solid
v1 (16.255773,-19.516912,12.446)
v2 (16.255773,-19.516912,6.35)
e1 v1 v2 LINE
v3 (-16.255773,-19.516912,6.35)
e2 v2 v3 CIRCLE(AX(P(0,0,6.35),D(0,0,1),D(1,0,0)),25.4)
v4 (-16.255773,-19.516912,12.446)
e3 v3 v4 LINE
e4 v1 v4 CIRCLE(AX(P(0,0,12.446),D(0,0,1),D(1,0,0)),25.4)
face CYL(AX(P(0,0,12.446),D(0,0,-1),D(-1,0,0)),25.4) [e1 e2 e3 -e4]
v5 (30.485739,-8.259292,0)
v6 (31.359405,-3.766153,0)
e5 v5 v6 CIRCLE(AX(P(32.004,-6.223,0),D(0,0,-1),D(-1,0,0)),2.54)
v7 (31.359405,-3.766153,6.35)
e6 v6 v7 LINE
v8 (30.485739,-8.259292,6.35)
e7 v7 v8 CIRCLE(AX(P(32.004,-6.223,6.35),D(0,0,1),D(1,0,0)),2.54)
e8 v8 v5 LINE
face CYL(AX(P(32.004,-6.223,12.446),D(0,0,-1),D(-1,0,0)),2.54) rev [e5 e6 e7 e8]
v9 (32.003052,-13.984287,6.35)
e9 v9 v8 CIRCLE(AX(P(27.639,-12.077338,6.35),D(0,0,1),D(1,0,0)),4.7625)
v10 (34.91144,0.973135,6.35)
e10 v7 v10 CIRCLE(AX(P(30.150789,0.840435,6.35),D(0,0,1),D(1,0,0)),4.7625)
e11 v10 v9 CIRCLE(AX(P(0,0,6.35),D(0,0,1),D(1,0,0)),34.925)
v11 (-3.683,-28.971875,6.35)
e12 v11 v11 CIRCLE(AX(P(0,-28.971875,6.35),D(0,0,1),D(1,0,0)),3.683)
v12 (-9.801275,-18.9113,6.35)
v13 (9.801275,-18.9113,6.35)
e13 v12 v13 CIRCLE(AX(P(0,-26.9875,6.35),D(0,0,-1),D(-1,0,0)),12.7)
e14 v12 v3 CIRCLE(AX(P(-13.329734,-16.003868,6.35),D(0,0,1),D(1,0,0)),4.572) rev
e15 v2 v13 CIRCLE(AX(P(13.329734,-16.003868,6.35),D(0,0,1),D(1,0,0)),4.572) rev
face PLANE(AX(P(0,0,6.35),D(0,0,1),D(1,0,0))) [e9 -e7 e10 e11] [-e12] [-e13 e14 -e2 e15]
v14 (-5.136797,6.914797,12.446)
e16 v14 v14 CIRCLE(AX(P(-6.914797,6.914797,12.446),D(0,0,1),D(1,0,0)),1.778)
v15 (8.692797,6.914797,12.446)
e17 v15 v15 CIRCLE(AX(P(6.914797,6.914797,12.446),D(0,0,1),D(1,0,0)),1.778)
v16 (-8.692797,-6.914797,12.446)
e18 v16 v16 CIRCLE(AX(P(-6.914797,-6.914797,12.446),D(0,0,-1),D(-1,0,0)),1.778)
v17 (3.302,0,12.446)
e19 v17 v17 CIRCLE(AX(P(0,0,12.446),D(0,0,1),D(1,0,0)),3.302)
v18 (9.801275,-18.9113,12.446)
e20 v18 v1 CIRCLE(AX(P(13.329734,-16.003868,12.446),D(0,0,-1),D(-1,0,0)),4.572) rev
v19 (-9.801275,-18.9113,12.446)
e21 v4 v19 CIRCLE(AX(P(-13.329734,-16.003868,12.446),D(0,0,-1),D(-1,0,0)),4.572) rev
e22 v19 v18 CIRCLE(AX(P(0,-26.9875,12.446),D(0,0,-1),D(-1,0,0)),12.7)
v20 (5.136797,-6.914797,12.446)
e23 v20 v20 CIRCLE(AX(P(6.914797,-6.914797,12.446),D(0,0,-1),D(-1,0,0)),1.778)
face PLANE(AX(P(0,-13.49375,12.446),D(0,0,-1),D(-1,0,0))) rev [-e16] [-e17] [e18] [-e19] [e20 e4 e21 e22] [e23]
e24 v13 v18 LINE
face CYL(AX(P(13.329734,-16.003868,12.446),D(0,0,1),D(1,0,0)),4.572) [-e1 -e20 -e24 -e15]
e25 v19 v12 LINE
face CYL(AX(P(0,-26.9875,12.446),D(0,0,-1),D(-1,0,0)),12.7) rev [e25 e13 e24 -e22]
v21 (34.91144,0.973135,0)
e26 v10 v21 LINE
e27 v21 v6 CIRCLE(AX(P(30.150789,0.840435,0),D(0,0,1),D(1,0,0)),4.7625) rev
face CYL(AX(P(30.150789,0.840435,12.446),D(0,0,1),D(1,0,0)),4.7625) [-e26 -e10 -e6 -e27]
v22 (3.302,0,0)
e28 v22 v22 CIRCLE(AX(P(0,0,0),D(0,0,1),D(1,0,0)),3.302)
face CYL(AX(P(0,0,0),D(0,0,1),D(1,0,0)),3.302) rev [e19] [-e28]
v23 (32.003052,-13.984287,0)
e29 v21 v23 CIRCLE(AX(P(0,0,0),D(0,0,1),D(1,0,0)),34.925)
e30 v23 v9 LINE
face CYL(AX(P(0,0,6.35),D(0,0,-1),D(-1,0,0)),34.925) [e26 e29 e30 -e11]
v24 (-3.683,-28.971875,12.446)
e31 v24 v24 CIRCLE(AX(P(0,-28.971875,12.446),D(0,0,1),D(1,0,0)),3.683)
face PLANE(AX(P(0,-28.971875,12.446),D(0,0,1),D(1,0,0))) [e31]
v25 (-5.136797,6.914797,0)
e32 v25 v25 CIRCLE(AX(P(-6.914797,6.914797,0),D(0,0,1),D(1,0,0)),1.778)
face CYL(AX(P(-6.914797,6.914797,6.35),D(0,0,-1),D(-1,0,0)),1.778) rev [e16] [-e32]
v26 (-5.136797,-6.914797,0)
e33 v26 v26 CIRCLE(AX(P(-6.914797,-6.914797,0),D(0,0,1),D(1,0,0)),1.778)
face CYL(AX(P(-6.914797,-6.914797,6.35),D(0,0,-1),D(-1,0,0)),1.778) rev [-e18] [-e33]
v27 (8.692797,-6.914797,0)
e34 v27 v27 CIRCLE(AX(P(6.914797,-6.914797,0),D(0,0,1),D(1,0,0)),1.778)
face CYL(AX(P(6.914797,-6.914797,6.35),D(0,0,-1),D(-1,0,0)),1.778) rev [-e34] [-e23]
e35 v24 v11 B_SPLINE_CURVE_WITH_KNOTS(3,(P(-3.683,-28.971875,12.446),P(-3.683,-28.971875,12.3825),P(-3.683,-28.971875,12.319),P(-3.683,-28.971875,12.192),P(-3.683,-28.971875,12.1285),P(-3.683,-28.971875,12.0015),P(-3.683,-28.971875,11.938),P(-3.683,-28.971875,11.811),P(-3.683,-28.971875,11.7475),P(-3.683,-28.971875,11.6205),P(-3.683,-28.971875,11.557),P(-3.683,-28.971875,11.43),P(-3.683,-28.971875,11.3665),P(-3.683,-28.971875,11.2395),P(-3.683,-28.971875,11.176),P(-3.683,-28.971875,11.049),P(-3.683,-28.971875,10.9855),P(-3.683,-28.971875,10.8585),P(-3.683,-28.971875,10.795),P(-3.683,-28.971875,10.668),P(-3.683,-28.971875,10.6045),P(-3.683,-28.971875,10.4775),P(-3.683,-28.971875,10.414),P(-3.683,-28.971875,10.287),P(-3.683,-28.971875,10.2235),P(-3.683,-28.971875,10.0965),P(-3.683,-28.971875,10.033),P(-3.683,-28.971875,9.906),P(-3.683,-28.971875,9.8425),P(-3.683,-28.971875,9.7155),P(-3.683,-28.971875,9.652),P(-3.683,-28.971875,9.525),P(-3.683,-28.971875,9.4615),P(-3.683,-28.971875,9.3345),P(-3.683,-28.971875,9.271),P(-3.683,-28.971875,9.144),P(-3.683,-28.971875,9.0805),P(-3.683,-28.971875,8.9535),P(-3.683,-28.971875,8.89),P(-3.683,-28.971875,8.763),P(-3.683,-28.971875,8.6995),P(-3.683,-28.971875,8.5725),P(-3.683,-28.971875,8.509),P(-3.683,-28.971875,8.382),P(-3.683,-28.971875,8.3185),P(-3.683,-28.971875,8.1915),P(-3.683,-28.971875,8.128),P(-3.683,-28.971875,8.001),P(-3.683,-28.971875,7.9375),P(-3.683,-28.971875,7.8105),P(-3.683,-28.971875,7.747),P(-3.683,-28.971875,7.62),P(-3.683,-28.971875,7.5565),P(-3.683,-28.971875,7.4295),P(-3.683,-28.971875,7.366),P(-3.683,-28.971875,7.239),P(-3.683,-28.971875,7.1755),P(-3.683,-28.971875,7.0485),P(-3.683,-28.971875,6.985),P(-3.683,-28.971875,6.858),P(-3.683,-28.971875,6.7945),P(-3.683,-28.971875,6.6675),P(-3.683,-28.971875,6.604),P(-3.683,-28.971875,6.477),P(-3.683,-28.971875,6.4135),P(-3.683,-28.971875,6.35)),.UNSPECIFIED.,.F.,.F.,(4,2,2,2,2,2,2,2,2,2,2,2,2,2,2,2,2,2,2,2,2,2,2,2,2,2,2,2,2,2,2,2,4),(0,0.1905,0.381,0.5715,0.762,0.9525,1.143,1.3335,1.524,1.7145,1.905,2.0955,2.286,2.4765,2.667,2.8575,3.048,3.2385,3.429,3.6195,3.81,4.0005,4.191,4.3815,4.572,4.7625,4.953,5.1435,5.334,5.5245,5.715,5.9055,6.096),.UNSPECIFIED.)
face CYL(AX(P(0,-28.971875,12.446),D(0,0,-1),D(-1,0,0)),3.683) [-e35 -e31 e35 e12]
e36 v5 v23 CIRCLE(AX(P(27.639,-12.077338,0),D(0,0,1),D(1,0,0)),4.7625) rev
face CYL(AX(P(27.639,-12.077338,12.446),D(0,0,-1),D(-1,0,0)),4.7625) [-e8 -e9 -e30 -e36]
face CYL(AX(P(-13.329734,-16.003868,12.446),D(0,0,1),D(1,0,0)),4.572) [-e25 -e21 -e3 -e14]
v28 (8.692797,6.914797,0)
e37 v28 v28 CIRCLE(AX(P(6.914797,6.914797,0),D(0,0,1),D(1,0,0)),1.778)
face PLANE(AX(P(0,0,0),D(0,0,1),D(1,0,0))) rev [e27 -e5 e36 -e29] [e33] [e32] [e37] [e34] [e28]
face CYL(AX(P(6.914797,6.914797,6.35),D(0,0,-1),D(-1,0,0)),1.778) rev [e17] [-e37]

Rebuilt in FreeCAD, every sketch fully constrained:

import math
import FreeCAD as App
import Part
import Sketcher
Q = App.Units.Quantity


def edges_at(feature, points):
    """Names of the edges that pass closest to the given points."""
    edges = feature.Shape.Edges
    near = lambda p: min(range(len(edges)), key=lambda i: edges[i].distToShape(Part.Vertex(*p))[0])
    return sorted({f"Edge{near(p) + 1}" for p in points})

doc = App.newDocument("Part")
body = doc.addObject("PartDesign::Body", "Body")

sketch1 = body.newObject("Sketcher::SketchObject", "Sketch")
sketch1.AttachmentSupport = (doc.getObject("XY_Plane"), [""])
sketch1.MapMode = "FlatFace"
sketch1.addGeometry(Part.Circle(App.Vector(0, 0, 0), App.Vector(0, 0, 1), 34.9), False)
sketch1.addGeometry(Part.Circle(App.Vector(-6.9, -6.9, 0), App.Vector(0, 0, 1), 1.8), False)
sketch1.addGeometry(Part.Circle(App.Vector(6.9, -6.9, 0), App.Vector(0, 0, 1), 1.8), False)
sketch1.addGeometry(Part.Circle(App.Vector(-6.9, 6.9, 0), App.Vector(0, 0, 1), 1.8), False)
sketch1.addGeometry(Part.Circle(App.Vector(6.9, 6.9, 0), App.Vector(0, 0, 1), 1.8), False)
sketch1.addConstraint(Sketcher.Constraint("Coincident", 0, 3, -1, 1))
sketch1.addConstraint(Sketcher.Constraint("Equal", 1, 2))
sketch1.addConstraint(Sketcher.Constraint("Equal", 2, 3))
sketch1.addConstraint(Sketcher.Constraint("Equal", 3, 4))
sketch1.addConstraint(Sketcher.Constraint("Symmetric", 2, 3, 3, 3, -1, 1))
sketch1.addConstraint(Sketcher.Constraint("Symmetric", 1, 3, 4, 3, -1, 1))
sketch1.addConstraint(Sketcher.Constraint("Symmetric", 1, 3, 2, 3, -2))
sketch1.addConstraint(Sketcher.Constraint("Diameter", 0, Q("2.75 in")))
sketch1.addConstraint(Sketcher.Constraint("Diameter", 1, Q("0.14 in")))
sketch1.addConstraint(Sketcher.Constraint("DistanceX", 1, 3, -1, 1, 6.914797))
sketch1.addConstraint(Sketcher.Constraint("DistanceY", 1, 3, -1, 1, 6.914797))
pad1 = body.newObject("PartDesign::Pad", "Pad")
pad1.Profile = sketch1
pad1.Length = Q("0.25 in")

sketch2 = body.newObject("Sketcher::SketchObject", "Sketch001")
sketch2.AttachmentSupport = (doc.getObject("XY_Plane"), [""])
sketch2.MapMode = "FlatFace"
sketch2.AttachmentOffset = App.Placement(App.Vector(0, 0, 0.25 * 25.4), App.Rotation())
sketch2.addGeometry(Part.Circle(App.Vector(0, -29, 0), App.Vector(0, 0, 1), 3.7), False)
sketch2.addGeometry(Part.ArcOfCircle(Part.Circle(App.Vector(0, 0, 0), App.Vector(0, 0, 1), 25.4), math.radians(-62), math.radians(242)), False)
sketch2.addGeometry(Part.ArcOfCircle(Part.Circle(App.Vector(0, -27, 0), App.Vector(0, 0, 1), 12.7), math.radians(21), math.radians(159)), False)
sketch2.addGeometry(Part.Circle(App.Vector(-6.9, 6.9, 0), App.Vector(0, 0, 1), 1.8), False)
sketch2.addGeometry(Part.Circle(App.Vector(6.9, 6.9, 0), App.Vector(0, 0, 1), 1.8), False)
sketch2.addConstraint(Sketcher.Constraint("Coincident", 1, 1, 2, 1))
sketch2.addConstraint(Sketcher.Constraint("Coincident", 2, 2, 1, 2))
sketch2.addConstraint(Sketcher.Constraint("Coincident", 1, 3, -1, 1))
sketch2.addConstraint(Sketcher.Constraint("Equal", 3, 4))
sketch2.addConstraint(Sketcher.Constraint("Symmetric", 3, 3, 4, 3, -2))
sketch2.addConstraint(Sketcher.Constraint("PointOnObject", 0, 3, -2))
sketch2.addConstraint(Sketcher.Constraint("PointOnObject", 2, 3, -2))
sketch2.addConstraint(Sketcher.Constraint("Radius", 1, Q("1 in")))
sketch2.addConstraint(Sketcher.Constraint("Radius", 2, Q("0.5 in")))
sketch2.addConstraint(Sketcher.Constraint("Diameter", 0, Q("0.29 in")))
sketch2.addConstraint(Sketcher.Constraint("Diameter", 3, Q("0.14 in")))
sketch2.addConstraint(Sketcher.Constraint("DistanceY", 0, 3, -1, 1, Q("1.140625 in")))
sketch2.addConstraint(Sketcher.Constraint("DistanceY", 2, 3, -1, 1, Q("1.0625 in")))
sketch2.addConstraint(Sketcher.Constraint("DistanceX", 3, 3, -1, 1, 6.914797))
sketch2.addConstraint(Sketcher.Constraint("DistanceY", -1, 1, 3, 3, 6.914797))
pad2 = body.newObject("PartDesign::Pad", "Pad001")
pad2.Profile = sketch2
pad2.Length = Q("0.24 in")

sketch3 = body.newObject("Sketcher::SketchObject", "Sketch002")
sketch3.AttachmentSupport = (doc.getObject("XY_Plane"), [""])
sketch3.MapMode = "FlatFace"
sketch3.AttachmentOffset = App.Placement(App.Vector(0, 0, 0.49 * 25.4), App.Rotation())
sketch3.addGeometry(Part.Circle(App.Vector(0, 0, 0), App.Vector(0, 0, 1), 3.3), False)
sketch3.addConstraint(Sketcher.Constraint("Coincident", 0, 3, -1, 1))
sketch3.addConstraint(Sketcher.Constraint("Diameter", 0, Q("0.26 in")))
pocket1 = body.newObject("PartDesign::Pocket", "Pocket")
pocket1.Profile = sketch3
pocket1.Type = "ThroughAll"
doc.recompute()

fillet = body.newObject("PartDesign::Fillet", "Fillet")
fillet.Base = (pocket1, edges_at(pocket1, [(-11.865, -22.458, 9.398), (11.865, -22.458, 9.398)]))
fillet.Radius = Q("0.18 in")

sketch4 = body.newObject("Sketcher::SketchObject", "Sketch003")
sketch4.AttachmentSupport = (doc.getObject("XY_Plane"), [""])
sketch4.MapMode = "FlatFace"
sketch4.addGeometry(Part.Circle(App.Vector(6.9, -6.9, 0), App.Vector(0, 0, 1), 1.8), False)
sketch4.addGeometry(Part.Circle(App.Vector(-6.9, -6.9, 0), App.Vector(0, 0, 1), 1.8), False)
sketch4.addConstraint(Sketcher.Constraint("Equal", 0, 1))
sketch4.addConstraint(Sketcher.Constraint("Symmetric", 0, 3, 1, 3, -2))
sketch4.addConstraint(Sketcher.Constraint("Diameter", 0, Q("0.14 in")))
sketch4.addConstraint(Sketcher.Constraint("DistanceX", -1, 1, 0, 3, 6.914797))
sketch4.addConstraint(Sketcher.Constraint("DistanceY", 0, 3, -1, 1, 6.914797))
pocket2 = body.newObject("PartDesign::Pocket", "Pocket001")
pocket2.Profile = sketch4
pocket2.Type = "ThroughAll"
pocket2.Reversed = True

sketch5 = body.newObject("Sketcher::SketchObject", "Sketch004")
sketch5.AttachmentSupport = (doc.getObject("XY_Plane"), [""])
sketch5.MapMode = "FlatFace"
sketch5.addGeometry(Part.Circle(App.Vector(32, -6.2, 0), App.Vector(0, 0, 1), 2.5), False)
sketch5.addConstraint(Sketcher.Constraint("Diameter", 0, Q("0.2 in")))
sketch5.addConstraint(Sketcher.Constraint("DistanceX", -1, 1, 0, 3, Q("1.26 in")))
sketch5.addConstraint(Sketcher.Constraint("DistanceY", 0, 3, -1, 1, Q("0.245 in")))
pocket3 = body.newObject("PartDesign::Pocket", "Pocket002")
pocket3.Profile = sketch5
pocket3.Type = "ThroughAll"
pocket3.Reversed = True
doc.recompute()

fillet2 = body.newObject("PartDesign::Fillet", "Fillet001")
fillet2.Base = (pocket3, edges_at(pocket3, [(34.47, -5.616, 3.175), (34.063, -7.71, 3.175)]))
fillet2.Radius = Q("0.1875 in")

doc.recompute()
